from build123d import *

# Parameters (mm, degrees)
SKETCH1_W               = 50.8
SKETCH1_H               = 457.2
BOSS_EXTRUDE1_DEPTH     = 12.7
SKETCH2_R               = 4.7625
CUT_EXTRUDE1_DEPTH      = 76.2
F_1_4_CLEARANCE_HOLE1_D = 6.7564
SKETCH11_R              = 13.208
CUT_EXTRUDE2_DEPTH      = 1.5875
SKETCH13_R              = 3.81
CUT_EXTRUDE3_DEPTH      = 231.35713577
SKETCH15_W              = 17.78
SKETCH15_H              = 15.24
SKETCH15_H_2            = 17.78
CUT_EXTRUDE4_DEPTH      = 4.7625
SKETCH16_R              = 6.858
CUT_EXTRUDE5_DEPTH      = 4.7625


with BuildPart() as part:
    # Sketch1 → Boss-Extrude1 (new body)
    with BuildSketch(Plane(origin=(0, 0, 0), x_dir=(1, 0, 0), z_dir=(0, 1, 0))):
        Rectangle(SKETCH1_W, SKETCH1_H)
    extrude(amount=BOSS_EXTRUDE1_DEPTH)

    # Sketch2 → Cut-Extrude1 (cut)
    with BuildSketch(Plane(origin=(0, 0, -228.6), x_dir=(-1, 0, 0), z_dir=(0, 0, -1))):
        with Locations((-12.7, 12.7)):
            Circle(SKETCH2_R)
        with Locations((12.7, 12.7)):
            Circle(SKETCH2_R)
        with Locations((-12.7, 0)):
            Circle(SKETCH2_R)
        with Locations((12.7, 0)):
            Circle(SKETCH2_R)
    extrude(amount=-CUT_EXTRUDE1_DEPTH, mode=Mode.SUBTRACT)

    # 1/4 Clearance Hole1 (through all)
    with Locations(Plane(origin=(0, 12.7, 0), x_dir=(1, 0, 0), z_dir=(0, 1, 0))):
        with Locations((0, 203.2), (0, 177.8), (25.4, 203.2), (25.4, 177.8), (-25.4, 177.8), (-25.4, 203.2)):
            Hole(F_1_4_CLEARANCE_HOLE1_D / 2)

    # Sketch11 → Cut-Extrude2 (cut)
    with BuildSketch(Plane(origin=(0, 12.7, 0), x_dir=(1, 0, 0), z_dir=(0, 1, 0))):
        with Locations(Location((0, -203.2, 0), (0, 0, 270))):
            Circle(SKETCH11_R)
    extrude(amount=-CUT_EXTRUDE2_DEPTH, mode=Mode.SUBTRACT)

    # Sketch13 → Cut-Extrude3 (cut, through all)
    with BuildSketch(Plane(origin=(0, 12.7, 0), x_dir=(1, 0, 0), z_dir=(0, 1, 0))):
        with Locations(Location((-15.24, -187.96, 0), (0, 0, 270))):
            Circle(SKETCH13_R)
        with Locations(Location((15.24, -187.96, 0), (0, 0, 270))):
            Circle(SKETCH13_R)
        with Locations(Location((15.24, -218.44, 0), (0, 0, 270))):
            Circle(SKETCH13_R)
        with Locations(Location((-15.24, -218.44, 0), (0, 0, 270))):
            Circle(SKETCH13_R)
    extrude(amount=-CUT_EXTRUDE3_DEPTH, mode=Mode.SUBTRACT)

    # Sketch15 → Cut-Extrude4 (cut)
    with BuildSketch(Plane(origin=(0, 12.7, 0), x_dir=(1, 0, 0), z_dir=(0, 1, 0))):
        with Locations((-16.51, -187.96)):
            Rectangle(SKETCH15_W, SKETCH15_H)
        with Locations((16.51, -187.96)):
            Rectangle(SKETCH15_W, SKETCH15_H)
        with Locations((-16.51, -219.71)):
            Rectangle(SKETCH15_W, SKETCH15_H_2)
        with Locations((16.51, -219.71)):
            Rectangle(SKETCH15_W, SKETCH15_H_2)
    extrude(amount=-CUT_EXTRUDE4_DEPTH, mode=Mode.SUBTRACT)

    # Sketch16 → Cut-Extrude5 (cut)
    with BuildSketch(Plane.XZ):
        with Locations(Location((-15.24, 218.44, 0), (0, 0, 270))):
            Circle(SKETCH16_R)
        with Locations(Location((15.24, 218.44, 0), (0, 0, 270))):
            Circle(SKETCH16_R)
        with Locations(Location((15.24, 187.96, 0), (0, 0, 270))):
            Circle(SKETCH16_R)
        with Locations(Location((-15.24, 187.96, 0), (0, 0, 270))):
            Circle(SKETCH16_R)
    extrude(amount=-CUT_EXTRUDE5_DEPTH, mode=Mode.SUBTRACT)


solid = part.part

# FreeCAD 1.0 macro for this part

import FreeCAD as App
import Part
import Sketcher

V = App.Vector
Q = App.Units.Quantity


def add_polygon(sketch, points):
    """Adds a closed chain of lines whose ends are joined by coincident constraints."""
    first, n = sketch.GeometryCount, len(points)
    for a, b in zip(points, points[1:] + points[:1]):
        sketch.addGeometry(Part.LineSegment(App.Vector(*a, 0), App.Vector(*b, 0)), False)
    for i in range(n):
        sketch.addConstraint(Sketcher.Constraint("Coincident", first + i, 2, first + (i + 1) % n, 1))

doc = App.newDocument("Part")
body = doc.addObject("PartDesign::Body", "Body")

# Sketch on XZ plane
sketch1 = body.newObject("Sketcher::SketchObject", "Sketch")
sketch1.AttachmentSupport = (doc.getObject("XZ_Plane"), [""])
sketch1.MapMode = "FlatFace"
add_polygon(sketch1, [(-25, -229), (-25, 229), (25, 229), (25, -229)])  # lines 0-3
sketch1.addConstraint([
    Sketcher.Constraint("Vertical", 0),
    Sketcher.Constraint("Horizontal", 1),
    Sketcher.Constraint("Vertical", 2),
    Sketcher.Constraint("Horizontal", 3),
    Sketcher.Constraint("Symmetric", 0, 2, 2, 2, -1, 1),
    Sketcher.Constraint("DistanceX", 1, 1, 1, 2, Q("2 in")),
    Sketcher.Constraint("DistanceY", 0, 1, 0, 2, Q("18 in")),
])
pad1 = body.newObject("PartDesign::Pad", "Pad")
pad1.Profile = sketch1
pad1.Length = Q("0.5 in")
pad1.Reversed = True

# Sketch on XY plane
sketch2 = body.newObject("Sketcher::SketchObject", "Sketch001")
sketch2.AttachmentSupport = (doc.getObject("XY_Plane"), [""])
sketch2.MapMode = "FlatFace"
sketch2.AttachmentOffset = App.Placement(V(0, 0, -9 * 25.4), App.Rotation())
sketch2.addGeometry([
    Part.Circle(V(12.7, 12.7, 0), V(0, 0, 1), 4.8),
    Part.Circle(V(-12.7, 12.7, 0), V(0, 0, 1), 4.8),
    Part.Circle(V(12.7, 0, 0), V(0, 0, 1), 4.8),
    Part.Circle(V(-12.7, 0, 0), V(0, 0, 1), 4.8),
], False)
sketch2.addConstraint([
    Sketcher.Constraint("Equal", 0, 1),
    Sketcher.Constraint("Equal", 1, 2),
    Sketcher.Constraint("Equal", 2, 3),
    Sketcher.Constraint("Symmetric", 2, 3, 3, 3, -1, 1),
    Sketcher.Constraint("Symmetric", 0, 3, 1, 3, -2),
    Sketcher.Constraint("PointOnObject", 2, 3, -1),
    Sketcher.Constraint("Vertical", 0, 3, 2, 3),
    Sketcher.Constraint("Diameter", 0, Q("0.375 in")),
    Sketcher.Constraint("DistanceX", 1, 3, 0, 3, Q("1 in")),
    Sketcher.Constraint("DistanceY", -1, 1, 0, 3, Q("0.5 in")),
])
pocket1 = body.newObject("PartDesign::Pocket", "Pocket")
pocket1.Profile = sketch2
pocket1.Length = Q("3 in")
pocket1.Reversed = True

# Sketch on XZ plane
sketch3 = body.newObject("Sketcher::SketchObject", "Sketch002")
sketch3.AttachmentSupport = (doc.getObject("XZ_Plane"), [""])
sketch3.MapMode = "FlatFace"
sketch3.AttachmentOffset = App.Placement(V(0, 0, -0.5 * 25.4), App.Rotation())
sketch3.addGeometry([
    Part.Circle(V(0, -203.2, 0), V(0, 0, 1), 3.4),  # 0
    Part.Circle(V(0, -177.8, 0), V(0, 0, 1), 3.4),  # 1
    Part.Circle(V(25.4, -203.2, 0), V(0, 0, 1), 3.4),  # 2
    Part.Circle(V(25.4, -177.8, 0), V(0, 0, 1), 3.4),  # 3
    Part.Circle(V(-25.4, -177.8, 0), V(0, 0, 1), 3.4),  # 4
    Part.Circle(V(-25.4, -203.2, 0), V(0, 0, 1), 3.4),  # 5
], False)
sketch3.addConstraint([
    Sketcher.Constraint("Equal", 0, 1),
    Sketcher.Constraint("Equal", 1, 2),
    Sketcher.Constraint("Equal", 2, 3),
    Sketcher.Constraint("Equal", 3, 4),
    Sketcher.Constraint("Equal", 4, 5),
    Sketcher.Constraint("Symmetric", 3, 3, 4, 3, -2),
    Sketcher.Constraint("Symmetric", 2, 3, 5, 3, -2),
    Sketcher.Constraint("PointOnObject", 0, 3, -2),
    Sketcher.Constraint("PointOnObject", 1, 3, -2),
    Sketcher.Constraint("Horizontal", 0, 3, 2, 3),
    Sketcher.Constraint("Horizontal", 1, 3, 3, 3),
    Sketcher.Constraint("Vertical", 2, 3, 3, 3),
    Sketcher.Constraint("Diameter", 0, Q("0.266 in")),
    Sketcher.Constraint("DistanceY", 0, 3, -1, 1, Q("8 in")),
    Sketcher.Constraint("DistanceY", 1, 3, -1, 1, Q("7 in")),
    Sketcher.Constraint("DistanceX", -1, 1, 2, 3, Q("1 in")),
])
doc.recompute()
hole = body.newObject("PartDesign::Hole", "Hole")
hole.Profile = sketch3
hole.ThreadType = "None"
hole.Diameter = Q("0.266 in")
hole.DepthType = "ThroughAll"
hole.Reversed = True

# Sketch on XZ plane
sketch4 = body.newObject("Sketcher::SketchObject", "Sketch003")
sketch4.AttachmentSupport = (doc.getObject("XZ_Plane"), [""])
sketch4.MapMode = "FlatFace"
sketch4.AttachmentOffset = App.Placement(V(0, 0, -0.5 * 25.4), App.Rotation())
sketch4.addGeometry(Part.Circle(V(0, 203, 0), V(0, 0, 1), 13), False)
sketch4.addConstraint([
    Sketcher.Constraint("PointOnObject", 0, 3, -2),
    Sketcher.Constraint("Diameter", 0, Q("1.04 in")),
    Sketcher.Constraint("DistanceY", -1, 1, 0, 3, Q("8 in")),
])
pocket2 = body.newObject("PartDesign::Pocket", "Pocket001")
pocket2.Profile = sketch4
pocket2.Length = Q("0.0625 in")
pocket2.Reversed = True

# Sketch on XZ plane
sketch5 = body.newObject("Sketcher::SketchObject", "Sketch004")
sketch5.AttachmentSupport = (doc.getObject("XZ_Plane"), [""])
sketch5.MapMode = "FlatFace"
sketch5.AttachmentOffset = App.Placement(V(0, 0, -0.5 * 25.4), App.Rotation())
sketch5.addGeometry([
    Part.Circle(V(-15.2, 188, 0), V(0, 0, 1), 3.8),
    Part.Circle(V(15.2, 188, 0), V(0, 0, 1), 3.8),
    Part.Circle(V(15.2, 218.4, 0), V(0, 0, 1), 3.8),
    Part.Circle(V(-15.2, 218.4, 0), V(0, 0, 1), 3.8),
], False)
sketch5.addConstraint([
    Sketcher.Constraint("Equal", 0, 1),
    Sketcher.Constraint("Equal", 1, 2),
    Sketcher.Constraint("Equal", 2, 3),
    Sketcher.Constraint("Symmetric", 0, 3, 1, 3, -2),
    Sketcher.Constraint("Symmetric", 2, 3, 3, 3, -2),
    Sketcher.Constraint("Vertical", 1, 3, 2, 3),
    Sketcher.Constraint("Diameter", 0, Q("0.3 in")),
    Sketcher.Constraint("DistanceX", 0, 3, -1, 1, Q("0.6 in")),
    Sketcher.Constraint("DistanceY", -1, 1, 0, 3, Q("7.4 in")),
    Sketcher.Constraint("DistanceY", -1, 1, 2, 3, Q("8.6 in")),
])
pocket3 = body.newObject("PartDesign::Pocket", "Pocket002")
pocket3.Profile = sketch5
pocket3.Type = "ThroughAll"
pocket3.Reversed = True

# Sketch on XZ plane
sketch6 = body.newObject("Sketcher::SketchObject", "Sketch005")
sketch6.AttachmentSupport = (doc.getObject("XZ_Plane"), [""])
sketch6.MapMode = "FlatFace"
sketch6.AttachmentOffset = App.Placement(V(0, 0, -0.5 * 25.4), App.Rotation())
add_polygon(sketch6, [(-25, 180), (-25, 196), (-8, 196), (-8, 180)])  # lines 0-3
add_polygon(sketch6, [(8, 180), (8, 196), (25, 196), (25, 180)])  # lines 4-7
add_polygon(sketch6, [(-25, 211), (-25, 229), (-8, 229), (-8, 211)])  # lines 8-11
add_polygon(sketch6, [(8, 211), (8, 229), (25, 229), (25, 211)])  # lines 12-15
sketch6.addConstraint([
    Sketcher.Constraint("Vertical", 0),
    Sketcher.Constraint("Horizontal", 1),
    Sketcher.Constraint("Vertical", 2),
    Sketcher.Constraint("Horizontal", 3),
    Sketcher.Constraint("Vertical", 4),
    Sketcher.Constraint("Horizontal", 5),
    Sketcher.Constraint("Vertical", 6),
    Sketcher.Constraint("Horizontal", 7),
    Sketcher.Constraint("Vertical", 8),
    Sketcher.Constraint("Horizontal", 9),
    Sketcher.Constraint("Vertical", 10),
    Sketcher.Constraint("Horizontal", 11),
    Sketcher.Constraint("Vertical", 12),
    Sketcher.Constraint("Horizontal", 13),
    Sketcher.Constraint("Vertical", 14),
    Sketcher.Constraint("Horizontal", 15),
    Sketcher.Constraint("Symmetric", 1, 2, 4, 2, -2),
    Sketcher.Constraint("Symmetric", 3, 2, 6, 2, -2),
    Sketcher.Constraint("Symmetric", 9, 2, 12, 2, -2),
    Sketcher.Constraint("Symmetric", 11, 2, 14, 2, -2),
    Sketcher.Constraint("Vertical", 3, 2, 8, 2),
    Sketcher.Constraint("Vertical", 2, 2, 9, 2),
    Sketcher.Constraint("Equal", 15, 8),
    Sketcher.Constraint("DistanceX", 1, 1, 1, 2, Q("0.7 in")),
    Sketcher.Constraint("DistanceY", 0, 1, 0, 2, Q("0.6 in")),
    Sketcher.Constraint("DistanceX", 0, 2, -1, 1, Q("1 in")),
    Sketcher.Constraint("DistanceY", -1, 1, 8, 2, Q("9 in")),
    Sketcher.Constraint("DistanceY", -1, 1, 0, 2, Q("7.7 in")),
])
pocket4 = body.newObject("PartDesign::Pocket", "Pocket003")
pocket4.Profile = sketch6
pocket4.Length = Q("0.1875 in")
pocket4.Reversed = True

# Sketch on XZ plane
sketch7 = body.newObject("Sketcher::SketchObject", "Sketch006")
sketch7.AttachmentSupport = (doc.getObject("XZ_Plane"), [""])
sketch7.MapMode = "FlatFace"
sketch7.addGeometry([
    Part.Circle(V(-15, 218, 0), V(0, 0, 1), 7),
    Part.Circle(V(15, 218, 0), V(0, 0, 1), 7),
    Part.Circle(V(15, 188, 0), V(0, 0, 1), 7),
    Part.Circle(V(-15, 188, 0), V(0, 0, 1), 7),
], False)
sketch7.addConstraint([
    Sketcher.Constraint("Equal", 0, 1),
    Sketcher.Constraint("Equal", 1, 2),
    Sketcher.Constraint("Equal", 2, 3),
    Sketcher.Constraint("Symmetric", 0, 3, 1, 3, -2),
    Sketcher.Constraint("Symmetric", 2, 3, 3, 3, -2),
    Sketcher.Constraint("Vertical", 1, 3, 2, 3),
    Sketcher.Constraint("Diameter", 0, Q("0.54 in")),
    Sketcher.Constraint("DistanceX", 0, 3, -1, 1, Q("0.6 in")),
    Sketcher.Constraint("DistanceY", -1, 1, 0, 3, Q("8.6 in")),
    Sketcher.Constraint("DistanceY", -1, 1, 2, 3, Q("7.4 in")),
])
pocket5 = body.newObject("PartDesign::Pocket", "Pocket004")
pocket5.Profile = sketch7
pocket5.Length = Q("0.1875 in")

doc.recompute()
